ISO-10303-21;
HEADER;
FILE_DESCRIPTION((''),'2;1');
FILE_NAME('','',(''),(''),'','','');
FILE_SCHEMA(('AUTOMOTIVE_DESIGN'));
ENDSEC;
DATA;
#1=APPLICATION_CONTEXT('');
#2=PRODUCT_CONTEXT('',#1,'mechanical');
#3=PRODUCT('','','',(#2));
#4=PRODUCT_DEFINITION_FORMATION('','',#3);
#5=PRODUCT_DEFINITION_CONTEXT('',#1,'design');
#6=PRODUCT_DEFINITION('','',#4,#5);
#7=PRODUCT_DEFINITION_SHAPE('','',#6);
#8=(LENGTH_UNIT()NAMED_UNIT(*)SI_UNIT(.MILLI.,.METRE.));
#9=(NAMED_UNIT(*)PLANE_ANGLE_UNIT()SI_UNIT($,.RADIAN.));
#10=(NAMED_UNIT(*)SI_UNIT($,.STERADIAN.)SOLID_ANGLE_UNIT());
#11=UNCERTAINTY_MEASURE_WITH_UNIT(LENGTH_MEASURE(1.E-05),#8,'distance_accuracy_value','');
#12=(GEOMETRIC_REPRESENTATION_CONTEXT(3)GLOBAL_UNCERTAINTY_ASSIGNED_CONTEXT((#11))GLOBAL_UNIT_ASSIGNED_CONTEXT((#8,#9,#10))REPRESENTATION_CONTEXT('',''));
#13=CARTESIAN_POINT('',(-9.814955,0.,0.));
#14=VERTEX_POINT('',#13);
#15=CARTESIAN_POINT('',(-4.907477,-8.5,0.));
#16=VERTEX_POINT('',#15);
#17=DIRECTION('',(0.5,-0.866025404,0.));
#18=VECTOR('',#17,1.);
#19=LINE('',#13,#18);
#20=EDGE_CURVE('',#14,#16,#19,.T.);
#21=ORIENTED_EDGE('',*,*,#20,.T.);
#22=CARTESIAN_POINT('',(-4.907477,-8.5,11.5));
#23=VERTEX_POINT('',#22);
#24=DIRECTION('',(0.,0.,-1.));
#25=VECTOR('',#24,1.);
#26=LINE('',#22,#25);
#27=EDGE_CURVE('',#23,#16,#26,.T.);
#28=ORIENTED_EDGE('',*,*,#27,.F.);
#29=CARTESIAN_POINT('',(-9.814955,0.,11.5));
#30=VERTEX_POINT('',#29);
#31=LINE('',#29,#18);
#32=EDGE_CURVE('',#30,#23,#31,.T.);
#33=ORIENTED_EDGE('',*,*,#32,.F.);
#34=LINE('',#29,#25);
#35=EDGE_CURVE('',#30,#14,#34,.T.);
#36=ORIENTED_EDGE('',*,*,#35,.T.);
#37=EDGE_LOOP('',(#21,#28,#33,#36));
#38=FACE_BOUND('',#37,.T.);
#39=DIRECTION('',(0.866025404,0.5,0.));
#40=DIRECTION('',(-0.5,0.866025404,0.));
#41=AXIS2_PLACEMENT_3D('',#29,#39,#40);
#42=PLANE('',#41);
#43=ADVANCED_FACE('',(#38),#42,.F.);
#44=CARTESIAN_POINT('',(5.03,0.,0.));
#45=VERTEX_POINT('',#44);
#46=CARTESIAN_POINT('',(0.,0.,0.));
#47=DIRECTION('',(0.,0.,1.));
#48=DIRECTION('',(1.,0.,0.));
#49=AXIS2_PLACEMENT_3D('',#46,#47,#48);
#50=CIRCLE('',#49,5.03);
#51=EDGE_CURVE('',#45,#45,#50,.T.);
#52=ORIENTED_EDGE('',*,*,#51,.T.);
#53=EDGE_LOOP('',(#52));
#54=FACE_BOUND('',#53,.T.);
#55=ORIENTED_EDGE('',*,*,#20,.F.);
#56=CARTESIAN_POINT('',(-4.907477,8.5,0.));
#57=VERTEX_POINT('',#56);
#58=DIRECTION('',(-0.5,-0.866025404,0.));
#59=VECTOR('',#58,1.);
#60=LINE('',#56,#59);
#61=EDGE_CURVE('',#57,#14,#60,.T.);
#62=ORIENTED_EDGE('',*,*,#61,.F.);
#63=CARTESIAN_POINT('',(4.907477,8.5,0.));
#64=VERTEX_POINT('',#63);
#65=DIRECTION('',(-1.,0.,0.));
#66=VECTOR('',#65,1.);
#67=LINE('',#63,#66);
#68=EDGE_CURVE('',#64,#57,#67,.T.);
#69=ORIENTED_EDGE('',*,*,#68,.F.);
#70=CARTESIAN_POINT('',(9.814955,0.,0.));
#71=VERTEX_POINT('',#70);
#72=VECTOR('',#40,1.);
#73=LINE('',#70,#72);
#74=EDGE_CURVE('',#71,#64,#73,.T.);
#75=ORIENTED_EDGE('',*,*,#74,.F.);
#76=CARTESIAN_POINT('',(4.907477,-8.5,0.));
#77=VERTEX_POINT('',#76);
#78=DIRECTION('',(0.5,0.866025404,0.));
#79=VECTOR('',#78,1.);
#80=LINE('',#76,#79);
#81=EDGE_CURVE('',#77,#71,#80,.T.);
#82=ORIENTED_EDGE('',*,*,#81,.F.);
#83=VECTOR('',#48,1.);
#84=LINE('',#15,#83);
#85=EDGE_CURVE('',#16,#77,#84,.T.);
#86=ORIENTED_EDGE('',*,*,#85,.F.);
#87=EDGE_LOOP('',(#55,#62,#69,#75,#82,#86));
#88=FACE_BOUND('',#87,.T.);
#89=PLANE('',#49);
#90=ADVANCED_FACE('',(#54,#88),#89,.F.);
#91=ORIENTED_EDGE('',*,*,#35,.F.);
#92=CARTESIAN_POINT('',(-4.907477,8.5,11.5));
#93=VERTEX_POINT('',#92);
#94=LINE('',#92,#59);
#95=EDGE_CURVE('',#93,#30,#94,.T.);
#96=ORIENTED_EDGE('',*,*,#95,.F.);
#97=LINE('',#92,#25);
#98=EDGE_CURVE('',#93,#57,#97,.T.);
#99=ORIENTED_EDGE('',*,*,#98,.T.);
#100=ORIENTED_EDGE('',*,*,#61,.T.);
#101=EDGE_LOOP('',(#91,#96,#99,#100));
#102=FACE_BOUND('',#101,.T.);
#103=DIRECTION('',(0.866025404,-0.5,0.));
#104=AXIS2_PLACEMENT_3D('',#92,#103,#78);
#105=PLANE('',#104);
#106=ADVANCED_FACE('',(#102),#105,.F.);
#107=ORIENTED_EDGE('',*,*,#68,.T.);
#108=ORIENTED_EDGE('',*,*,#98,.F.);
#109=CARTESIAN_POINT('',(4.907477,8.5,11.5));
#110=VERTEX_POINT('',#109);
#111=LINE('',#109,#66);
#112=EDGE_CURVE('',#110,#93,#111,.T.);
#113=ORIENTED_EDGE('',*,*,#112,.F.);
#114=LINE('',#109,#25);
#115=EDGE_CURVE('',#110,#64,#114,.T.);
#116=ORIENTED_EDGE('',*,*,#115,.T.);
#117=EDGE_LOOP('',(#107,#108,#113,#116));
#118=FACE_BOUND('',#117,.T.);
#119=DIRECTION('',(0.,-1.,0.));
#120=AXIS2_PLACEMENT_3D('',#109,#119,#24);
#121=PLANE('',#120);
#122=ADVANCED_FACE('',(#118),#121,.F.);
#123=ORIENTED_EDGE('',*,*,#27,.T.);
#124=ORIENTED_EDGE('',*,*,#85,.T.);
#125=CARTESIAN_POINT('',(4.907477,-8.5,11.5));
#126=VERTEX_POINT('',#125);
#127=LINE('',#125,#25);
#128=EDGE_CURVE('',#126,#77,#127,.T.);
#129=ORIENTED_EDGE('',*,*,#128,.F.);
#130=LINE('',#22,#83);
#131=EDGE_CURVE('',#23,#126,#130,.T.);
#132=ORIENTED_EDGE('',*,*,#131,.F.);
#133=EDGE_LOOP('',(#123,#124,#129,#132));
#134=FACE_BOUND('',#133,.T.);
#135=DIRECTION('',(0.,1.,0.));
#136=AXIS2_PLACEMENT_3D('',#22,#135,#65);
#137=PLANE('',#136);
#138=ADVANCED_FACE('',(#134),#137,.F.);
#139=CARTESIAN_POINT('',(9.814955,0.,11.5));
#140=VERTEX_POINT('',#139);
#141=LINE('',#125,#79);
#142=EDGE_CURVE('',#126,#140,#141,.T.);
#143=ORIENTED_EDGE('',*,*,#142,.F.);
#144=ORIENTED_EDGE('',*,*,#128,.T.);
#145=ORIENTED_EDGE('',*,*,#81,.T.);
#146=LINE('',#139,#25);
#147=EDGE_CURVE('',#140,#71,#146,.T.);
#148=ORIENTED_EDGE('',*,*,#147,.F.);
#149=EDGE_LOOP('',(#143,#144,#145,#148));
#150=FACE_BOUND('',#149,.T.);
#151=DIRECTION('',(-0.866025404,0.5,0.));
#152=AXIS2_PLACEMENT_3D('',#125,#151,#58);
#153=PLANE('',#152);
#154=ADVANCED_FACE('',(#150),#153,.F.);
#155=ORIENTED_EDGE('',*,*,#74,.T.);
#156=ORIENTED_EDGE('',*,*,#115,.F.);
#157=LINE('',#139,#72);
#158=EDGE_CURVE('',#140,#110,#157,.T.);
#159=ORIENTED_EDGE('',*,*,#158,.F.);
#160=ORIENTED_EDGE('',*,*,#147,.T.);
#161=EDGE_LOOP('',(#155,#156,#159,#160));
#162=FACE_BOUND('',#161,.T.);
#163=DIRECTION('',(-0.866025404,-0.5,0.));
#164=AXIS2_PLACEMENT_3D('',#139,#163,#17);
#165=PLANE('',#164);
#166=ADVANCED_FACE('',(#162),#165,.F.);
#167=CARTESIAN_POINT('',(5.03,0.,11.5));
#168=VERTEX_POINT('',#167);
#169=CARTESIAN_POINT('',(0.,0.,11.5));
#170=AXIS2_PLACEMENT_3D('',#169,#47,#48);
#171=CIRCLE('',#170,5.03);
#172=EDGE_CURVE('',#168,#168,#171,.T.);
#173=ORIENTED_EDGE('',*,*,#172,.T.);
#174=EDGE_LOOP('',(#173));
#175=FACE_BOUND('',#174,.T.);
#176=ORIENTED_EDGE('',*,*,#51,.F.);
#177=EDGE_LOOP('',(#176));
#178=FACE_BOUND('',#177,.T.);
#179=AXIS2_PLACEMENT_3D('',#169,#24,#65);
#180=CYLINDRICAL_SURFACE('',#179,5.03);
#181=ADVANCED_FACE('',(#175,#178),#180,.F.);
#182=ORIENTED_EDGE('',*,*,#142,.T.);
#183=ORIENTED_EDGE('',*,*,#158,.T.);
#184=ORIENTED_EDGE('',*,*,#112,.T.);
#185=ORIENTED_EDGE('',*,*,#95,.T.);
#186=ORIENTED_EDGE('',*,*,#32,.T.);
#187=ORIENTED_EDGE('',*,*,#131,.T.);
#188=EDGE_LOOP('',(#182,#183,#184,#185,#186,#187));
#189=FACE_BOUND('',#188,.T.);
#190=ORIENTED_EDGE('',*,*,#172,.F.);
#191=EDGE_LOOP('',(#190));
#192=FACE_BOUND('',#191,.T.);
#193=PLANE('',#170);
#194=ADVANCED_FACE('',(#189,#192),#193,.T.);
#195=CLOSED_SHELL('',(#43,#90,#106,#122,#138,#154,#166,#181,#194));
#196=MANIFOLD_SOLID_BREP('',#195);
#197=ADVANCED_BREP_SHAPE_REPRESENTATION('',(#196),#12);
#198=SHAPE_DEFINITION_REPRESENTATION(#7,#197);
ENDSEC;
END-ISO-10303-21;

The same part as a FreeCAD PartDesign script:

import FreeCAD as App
import Part
import Sketcher
from FreeCAD import Vector
Q = App.Units.Quantity

doc = App.newDocument("Part")
body = doc.addObject("PartDesign::Body", "Body")

# Sketch on XY plane
sketch1 = body.newObject("Sketcher::SketchObject", "Sketch")
sketch1.AttachmentSupport = (doc.getObject("XY_Plane"), [""])
sketch1.MapMode = "FlatFace"
sketch1.addGeometry(Part.LineSegment(Vector(9.814955, 0, 0), Vector(4.907477, 8.5, 0)), False)
sketch1.addGeometry(Part.LineSegment(Vector(4.907477, 8.5, 0), Vector(-4.907477, 8.5, 0)), False)
sketch1.addGeometry(Part.LineSegment(Vector(-4.907477, 8.5, 0), Vector(-9.814955, 0, 0)), False)
sketch1.addGeometry(Part.LineSegment(Vector(-9.814955, 0, 0), Vector(-4.907477, -8.5, 0)), False)
sketch1.addGeometry(Part.LineSegment(Vector(-4.907477, -8.5, 0), Vector(4.907477, -8.5, 0)), False)
sketch1.addGeometry(Part.LineSegment(Vector(4.907477, -8.5, 0), Vector(9.814955, 0, 0)), False)
sketch1.addGeometry(Part.Circle(Vector(0, 0, 0), Vector(0, 0, 1), 5.03), False)
sketch1.addConstraint(Sketcher.Constraint("Coincident", 0, 2, 1, 1))
sketch1.addConstraint(Sketcher.Constraint("Coincident", 1, 2, 2, 1))
sketch1.addConstraint(Sketcher.Constraint("Coincident", 2, 2, 3, 1))
sketch1.addConstraint(Sketcher.Constraint("Coincident", 3, 2, 4, 1))
sketch1.addConstraint(Sketcher.Constraint("Coincident", 4, 2, 5, 1))
sketch1.addConstraint(Sketcher.Constraint("Coincident", 5, 2, 0, 1))
sketch1.addConstraint(Sketcher.Constraint("Horizontal", 1))
sketch1.addConstraint(Sketcher.Constraint("Horizontal", 4))
sketch1.addConstraint(Sketcher.Constraint("Coincident", 6, 3, -1, 1))
sketch1.addConstraint(Sketcher.Constraint("Symmetric", 0, 2, 3, 2, -1, 1))
sketch1.addConstraint(Sketcher.Constraint("Symmetric", 2, 2, 5, 2, -1, 1))
sketch1.addConstraint(Sketcher.Constraint("PointOnObject", 2, 2, -1))
sketch1.addConstraint(Sketcher.Constraint("Parallel", 2, 5))
sketch1.addConstraint(Sketcher.Constraint("Vertical", 1, 2, 3, 2))
sketch1.addConstraint(Sketcher.Constraint("Diameter", 6, 10.06))
sketch1.addConstraint(Sketcher.Constraint("Angle", 0, Q("120 deg")))
sketch1.addConstraint(Sketcher.Constraint("DistanceY", 3, 2, 1, 2, 17.0))
sketch1.addConstraint(Sketcher.Constraint("DistanceX", 1, 2, 1, 1, 9.814955))
pad1 = body.newObject("PartDesign::Pad", "Pad")
pad1.Profile = sketch1
pad1.Length = 11.5

doc.recompute()
